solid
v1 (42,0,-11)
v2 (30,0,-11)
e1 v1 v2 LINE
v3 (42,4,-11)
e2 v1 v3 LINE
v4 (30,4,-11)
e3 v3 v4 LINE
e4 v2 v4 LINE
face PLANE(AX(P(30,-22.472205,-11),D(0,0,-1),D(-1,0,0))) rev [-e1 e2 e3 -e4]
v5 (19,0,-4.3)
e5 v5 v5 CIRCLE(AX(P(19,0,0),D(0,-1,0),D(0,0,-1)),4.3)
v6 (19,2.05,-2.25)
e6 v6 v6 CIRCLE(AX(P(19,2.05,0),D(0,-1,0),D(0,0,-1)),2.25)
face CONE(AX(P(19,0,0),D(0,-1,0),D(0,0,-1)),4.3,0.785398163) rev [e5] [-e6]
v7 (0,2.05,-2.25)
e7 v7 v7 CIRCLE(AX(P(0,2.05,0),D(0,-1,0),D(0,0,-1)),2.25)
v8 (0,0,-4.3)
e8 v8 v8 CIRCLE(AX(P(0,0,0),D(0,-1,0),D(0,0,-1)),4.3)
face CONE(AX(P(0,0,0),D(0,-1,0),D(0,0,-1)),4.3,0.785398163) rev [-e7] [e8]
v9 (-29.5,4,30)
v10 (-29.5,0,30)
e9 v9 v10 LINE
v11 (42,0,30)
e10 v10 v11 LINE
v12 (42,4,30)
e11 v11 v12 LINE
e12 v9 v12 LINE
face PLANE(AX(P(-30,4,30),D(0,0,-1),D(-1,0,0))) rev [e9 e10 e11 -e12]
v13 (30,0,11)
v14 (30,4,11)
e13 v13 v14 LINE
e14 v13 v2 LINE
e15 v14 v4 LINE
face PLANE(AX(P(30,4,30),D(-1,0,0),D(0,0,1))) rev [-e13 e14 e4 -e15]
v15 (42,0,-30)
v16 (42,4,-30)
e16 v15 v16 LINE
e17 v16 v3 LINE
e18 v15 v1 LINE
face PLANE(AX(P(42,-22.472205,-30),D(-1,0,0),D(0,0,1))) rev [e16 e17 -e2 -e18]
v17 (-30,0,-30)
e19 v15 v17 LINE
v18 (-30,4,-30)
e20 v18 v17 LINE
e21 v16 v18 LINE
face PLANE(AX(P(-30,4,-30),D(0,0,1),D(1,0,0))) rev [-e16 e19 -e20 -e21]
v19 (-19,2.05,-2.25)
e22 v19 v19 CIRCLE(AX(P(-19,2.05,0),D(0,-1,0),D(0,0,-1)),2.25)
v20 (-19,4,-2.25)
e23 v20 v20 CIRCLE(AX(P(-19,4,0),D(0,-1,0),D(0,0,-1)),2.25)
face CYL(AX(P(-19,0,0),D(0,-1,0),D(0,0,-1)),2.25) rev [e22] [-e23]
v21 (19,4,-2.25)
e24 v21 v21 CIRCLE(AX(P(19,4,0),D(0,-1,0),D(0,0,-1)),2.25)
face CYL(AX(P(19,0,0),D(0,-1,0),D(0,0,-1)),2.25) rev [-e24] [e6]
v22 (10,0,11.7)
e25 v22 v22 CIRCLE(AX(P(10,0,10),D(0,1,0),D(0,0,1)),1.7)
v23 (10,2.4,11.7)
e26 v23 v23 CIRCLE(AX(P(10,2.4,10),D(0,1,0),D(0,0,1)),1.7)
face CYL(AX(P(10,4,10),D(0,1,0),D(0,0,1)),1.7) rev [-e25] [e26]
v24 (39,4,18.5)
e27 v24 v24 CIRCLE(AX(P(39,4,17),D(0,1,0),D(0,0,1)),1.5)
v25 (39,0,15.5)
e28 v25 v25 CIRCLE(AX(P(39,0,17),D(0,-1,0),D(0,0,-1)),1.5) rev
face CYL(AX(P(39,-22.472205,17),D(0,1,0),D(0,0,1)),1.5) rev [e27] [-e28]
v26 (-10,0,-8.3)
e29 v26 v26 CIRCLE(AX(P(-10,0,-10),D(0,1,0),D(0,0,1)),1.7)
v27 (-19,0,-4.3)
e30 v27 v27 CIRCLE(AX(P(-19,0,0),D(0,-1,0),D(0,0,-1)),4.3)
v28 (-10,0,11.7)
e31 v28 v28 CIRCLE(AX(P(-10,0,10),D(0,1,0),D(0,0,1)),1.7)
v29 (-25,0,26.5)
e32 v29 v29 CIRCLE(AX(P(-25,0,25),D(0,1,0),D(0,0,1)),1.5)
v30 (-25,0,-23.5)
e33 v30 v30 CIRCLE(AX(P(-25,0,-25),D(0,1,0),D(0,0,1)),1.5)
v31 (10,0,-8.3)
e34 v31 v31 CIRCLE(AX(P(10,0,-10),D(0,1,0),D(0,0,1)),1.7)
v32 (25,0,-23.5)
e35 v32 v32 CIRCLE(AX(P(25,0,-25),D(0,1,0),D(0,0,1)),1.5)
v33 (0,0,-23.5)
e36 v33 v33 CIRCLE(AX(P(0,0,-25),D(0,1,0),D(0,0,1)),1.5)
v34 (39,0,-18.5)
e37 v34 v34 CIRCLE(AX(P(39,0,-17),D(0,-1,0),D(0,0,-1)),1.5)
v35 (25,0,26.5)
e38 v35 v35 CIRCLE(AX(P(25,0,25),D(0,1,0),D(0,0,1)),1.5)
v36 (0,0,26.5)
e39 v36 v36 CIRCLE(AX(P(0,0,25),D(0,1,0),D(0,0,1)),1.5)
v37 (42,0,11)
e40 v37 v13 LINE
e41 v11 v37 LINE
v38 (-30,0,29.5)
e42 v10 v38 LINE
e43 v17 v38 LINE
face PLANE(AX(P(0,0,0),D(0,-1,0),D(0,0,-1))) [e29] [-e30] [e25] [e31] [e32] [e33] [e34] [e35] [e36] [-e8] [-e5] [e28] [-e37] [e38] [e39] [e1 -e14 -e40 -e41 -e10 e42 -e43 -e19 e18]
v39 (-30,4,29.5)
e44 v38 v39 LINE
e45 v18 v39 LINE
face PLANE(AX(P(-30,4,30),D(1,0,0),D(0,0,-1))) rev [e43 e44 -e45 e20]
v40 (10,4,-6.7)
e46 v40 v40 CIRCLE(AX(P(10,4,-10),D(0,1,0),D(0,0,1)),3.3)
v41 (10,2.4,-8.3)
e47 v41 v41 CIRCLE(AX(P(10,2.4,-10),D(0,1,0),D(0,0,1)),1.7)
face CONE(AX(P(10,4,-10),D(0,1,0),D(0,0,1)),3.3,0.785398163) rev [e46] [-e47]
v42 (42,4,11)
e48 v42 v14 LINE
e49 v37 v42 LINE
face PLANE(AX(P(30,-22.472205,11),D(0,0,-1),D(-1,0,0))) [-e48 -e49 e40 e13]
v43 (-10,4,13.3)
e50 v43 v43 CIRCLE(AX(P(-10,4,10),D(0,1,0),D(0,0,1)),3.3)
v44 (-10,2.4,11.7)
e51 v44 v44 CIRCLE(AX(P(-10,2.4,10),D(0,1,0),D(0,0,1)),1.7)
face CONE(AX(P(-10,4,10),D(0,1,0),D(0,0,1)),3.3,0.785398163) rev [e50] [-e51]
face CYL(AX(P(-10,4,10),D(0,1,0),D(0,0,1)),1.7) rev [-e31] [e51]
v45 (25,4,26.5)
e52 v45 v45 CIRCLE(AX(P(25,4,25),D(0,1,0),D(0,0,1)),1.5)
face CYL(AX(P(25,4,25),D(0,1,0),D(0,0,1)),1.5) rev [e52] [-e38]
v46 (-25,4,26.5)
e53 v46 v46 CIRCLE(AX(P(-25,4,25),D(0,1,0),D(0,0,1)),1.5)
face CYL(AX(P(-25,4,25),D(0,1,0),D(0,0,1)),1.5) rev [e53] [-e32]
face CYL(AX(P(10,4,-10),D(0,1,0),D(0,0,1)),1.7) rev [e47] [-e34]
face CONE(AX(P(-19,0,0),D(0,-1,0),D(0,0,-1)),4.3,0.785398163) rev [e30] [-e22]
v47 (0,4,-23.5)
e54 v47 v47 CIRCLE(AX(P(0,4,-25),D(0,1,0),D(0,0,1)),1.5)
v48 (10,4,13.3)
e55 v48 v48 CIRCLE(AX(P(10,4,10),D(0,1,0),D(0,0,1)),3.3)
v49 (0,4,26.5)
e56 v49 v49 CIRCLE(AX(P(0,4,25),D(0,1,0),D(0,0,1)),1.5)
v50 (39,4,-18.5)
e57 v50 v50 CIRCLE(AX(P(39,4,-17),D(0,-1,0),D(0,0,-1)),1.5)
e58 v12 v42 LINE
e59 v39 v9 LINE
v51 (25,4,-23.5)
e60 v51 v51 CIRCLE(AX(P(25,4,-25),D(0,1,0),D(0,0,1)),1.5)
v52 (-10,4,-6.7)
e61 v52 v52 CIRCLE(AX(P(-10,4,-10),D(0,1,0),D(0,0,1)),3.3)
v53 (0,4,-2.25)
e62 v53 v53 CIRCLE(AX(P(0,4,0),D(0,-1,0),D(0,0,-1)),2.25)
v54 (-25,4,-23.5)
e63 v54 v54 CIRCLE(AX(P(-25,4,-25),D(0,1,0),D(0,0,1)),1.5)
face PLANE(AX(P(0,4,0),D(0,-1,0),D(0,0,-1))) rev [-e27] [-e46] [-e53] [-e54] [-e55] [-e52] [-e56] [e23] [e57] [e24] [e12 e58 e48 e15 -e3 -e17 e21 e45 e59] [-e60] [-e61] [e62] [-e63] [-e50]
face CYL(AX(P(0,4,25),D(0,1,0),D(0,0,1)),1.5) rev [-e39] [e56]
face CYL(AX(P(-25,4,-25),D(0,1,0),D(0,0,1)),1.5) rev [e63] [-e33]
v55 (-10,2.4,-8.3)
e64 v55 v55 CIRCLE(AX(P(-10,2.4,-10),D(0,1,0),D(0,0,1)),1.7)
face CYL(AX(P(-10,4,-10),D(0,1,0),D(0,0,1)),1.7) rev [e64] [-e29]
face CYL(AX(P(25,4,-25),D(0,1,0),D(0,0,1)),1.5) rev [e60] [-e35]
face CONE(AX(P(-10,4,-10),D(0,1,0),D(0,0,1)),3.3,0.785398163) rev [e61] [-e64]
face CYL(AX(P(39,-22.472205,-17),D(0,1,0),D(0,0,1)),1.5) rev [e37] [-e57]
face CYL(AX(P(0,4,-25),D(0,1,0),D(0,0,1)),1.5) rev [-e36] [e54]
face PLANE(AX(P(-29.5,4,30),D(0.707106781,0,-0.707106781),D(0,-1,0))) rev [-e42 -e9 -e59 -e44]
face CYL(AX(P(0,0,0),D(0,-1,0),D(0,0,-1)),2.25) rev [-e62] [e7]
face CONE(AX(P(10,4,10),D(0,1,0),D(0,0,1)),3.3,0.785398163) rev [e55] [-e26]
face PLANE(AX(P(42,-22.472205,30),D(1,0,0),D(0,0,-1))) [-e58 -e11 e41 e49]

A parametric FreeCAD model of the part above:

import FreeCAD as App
import Part
import Sketcher

V = App.Vector
Q = App.Units.Quantity


def edges_at(feature, points):
    """Names of the edges that pass closest to the given points."""
    edges = feature.Shape.Edges
    near = lambda p: min(range(len(edges)), key=lambda i: edges[i].distToShape(Part.Vertex(*p))[0])
    return sorted({f"Edge{near(p) + 1}" for p in points})

doc = App.newDocument("Part")
body = doc.addObject("PartDesign::Body", "Body")

sketch1 = doc.addObject("Sketcher::SketchObject", "Sketch")
body.addObject(sketch1)
sketch1.AttachmentSupport = (doc.XZ_Plane, [""])
sketch1.MapMode = "FlatFace"
sketch1.addGeometry(Part.LineSegment(V(-30, -30, 0), V(-30, 30, 0)), False)
sketch1.addGeometry(Part.LineSegment(V(-30, 30, 0), V(30, 30, 0)), False)
sketch1.addGeometry(Part.LineSegment(V(30, 30, 0), V(30, -30, 0)), False)
sketch1.addGeometry(Part.LineSegment(V(30, -30, 0), V(-30, -30, 0)), False)
sketch1.addConstraint(Sketcher.Constraint("Coincident", 0, 2, 1, 1))
sketch1.addConstraint(Sketcher.Constraint("Coincident", 1, 2, 2, 1))
sketch1.addConstraint(Sketcher.Constraint("Coincident", 2, 2, 3, 1))
sketch1.addConstraint(Sketcher.Constraint("Coincident", 3, 2, 0, 1))
sketch1.addConstraint(Sketcher.Constraint("Vertical", 0))
sketch1.addConstraint(Sketcher.Constraint("Horizontal", 1))
sketch1.addConstraint(Sketcher.Constraint("Vertical", 2))
sketch1.addConstraint(Sketcher.Constraint("Horizontal", 3))
sketch1.addConstraint(Sketcher.Constraint("Symmetric", 0, 2, 2, 2, -1, 1))
sketch1.addConstraint(Sketcher.Constraint("Equal", 3, 0))
sketch1.addConstraint(Sketcher.Constraint("DistanceX", 1, 1, 1, 2, 60.0))
pad1 = doc.addObject("PartDesign::Pad", "Pad")
body.addObject(pad1)
pad1.Profile = sketch1
pad1.Length = 4
pad1.Reversed = True

sketch2 = doc.addObject("Sketcher::SketchObject", "Sketch001")
body.addObject(sketch2)
sketch2.AttachmentSupport = (doc.XZ_Plane, [""])
sketch2.MapMode = "FlatFace"
sketch2.AttachmentOffset = App.Placement(V(0, 0, -4), App.Rotation())
sketch2.addGeometry(Part.Circle(V(-10, -10, 0), V(0, 0, 1), 1.7), False)
sketch2.addGeometry(Part.Circle(V(10, -10, 0), V(0, 0, 1), 1.7), False)
sketch2.addGeometry(Part.Circle(V(10, 10, 0), V(0, 0, 1), 1.7), False)
sketch2.addGeometry(Part.Circle(V(-10, 10, 0), V(0, 0, 1), 1.7), False)
sketch2.addConstraint(Sketcher.Constraint("Equal", 0, 1))
sketch2.addConstraint(Sketcher.Constraint("Equal", 1, 2))
sketch2.addConstraint(Sketcher.Constraint("Equal", 2, 3))
sketch2.addConstraint(Sketcher.Constraint("Symmetric", 0, 3, 2, 3, -1, 1))
sketch2.addConstraint(Sketcher.Constraint("Symmetric", 1, 3, 3, 3, -1, 1))
sketch2.addConstraint(Sketcher.Constraint("Symmetric", 0, 3, 1, 3, -2))
sketch2.addConstraint(Sketcher.Constraint("Diameter", 0, 3.4))
sketch2.addConstraint(Sketcher.Constraint("DistanceX", 0, 3, -1, 1, 10.0))
sketch2.addConstraint(Sketcher.Constraint("DistanceY", 0, 3, -1, 1, 10.0))
doc.recompute()
hole = doc.addObject("PartDesign::Hole", "Hole")
body.addObject(hole)
hole.Profile = sketch2
hole.ThreadType = "None"
hole.Diameter = 3.4
hole.DepthType = "ThroughAll"
hole.HoleCutType = "Countersink"
hole.HoleCutDiameter = 6.6
hole.HoleCutCountersinkAngle = 90
hole.Reversed = True

sketch3 = doc.addObject("Sketcher::SketchObject", "Sketch002")
body.addObject(sketch3)
sketch3.AttachmentSupport = (doc.YZ_Plane, [""])
sketch3.MapMode = "FlatFace"
sketch3.AttachmentOffset = App.Placement(V(0, 0, -19), App.Rotation())
sketch3.addGeometry(Part.LineSegment(V(4, 0, 0), V(0, 0, 0)), False)
sketch3.addGeometry(Part.LineSegment(V(0, 0, 0), V(0, -4.3, 0)), False)
sketch3.addGeometry(Part.LineSegment(V(0, -4.3, 0), V(2, -2.2, 0)), False)
sketch3.addGeometry(Part.LineSegment(V(2, -2.2, 0), V(4, -2.2, 0)), False)
sketch3.addGeometry(Part.LineSegment(V(4, -2.2, 0), V(4, 0, 0)), False)
sketch3.addConstraint(Sketcher.Constraint("Coincident", 0, 2, 1, 1))
sketch3.addConstraint(Sketcher.Constraint("Coincident", 1, 2, 2, 1))
sketch3.addConstraint(Sketcher.Constraint("Coincident", 2, 2, 3, 1))
sketch3.addConstraint(Sketcher.Constraint("Coincident", 3, 2, 4, 1))
sketch3.addConstraint(Sketcher.Constraint("Coincident", 4, 2, 0, 1))
sketch3.addConstraint(Sketcher.Constraint("Horizontal", 0))
sketch3.addConstraint(Sketcher.Constraint("Vertical", 1))
sketch3.addConstraint(Sketcher.Constraint("Horizontal", 3))
sketch3.addConstraint(Sketcher.Constraint("Vertical", 4))
sketch3.addConstraint(Sketcher.Constraint("Coincident", 0, 2, -1, 1))
sketch3.addConstraint(Sketcher.Constraint("DistanceX", 0, 2, 0, 1, 4.0))
sketch3.addConstraint(Sketcher.Constraint("Angle", 2, Q("45 deg")))
sketch3.addConstraint(Sketcher.Constraint("DistanceY", 1, 2, 1, 1, 4.3))
sketch3.addConstraint(Sketcher.Constraint("DistanceX", 3, 1, 3, 2, 1.95))
groove = doc.addObject("PartDesign::Groove", "Groove")
body.addObject(groove)
groove.Profile = sketch3
groove.ReferenceAxis = (sketch3, ["H_Axis"])
groove.Angle = 360
doc.recompute()

linearpattern = doc.addObject("PartDesign::LinearPattern", "LinearPattern")
body.addObject(linearpattern)
linearpattern.Originals = [groove]
linearpattern.Direction = (doc.X_Axis, [""])
linearpattern.Mode = "offset"
linearpattern.Offset = 19
linearpattern.Occurrences = 2
body.Tip = linearpattern
doc.recompute()

linearpattern2 = doc.addObject("PartDesign::LinearPattern", "LinearPattern001")
body.addObject(linearpattern2)
linearpattern2.Originals = [groove]
linearpattern2.Direction = (doc.X_Axis, [""])
linearpattern2.Mode = "offset"
linearpattern2.Offset = 38
linearpattern2.Occurrences = 2
body.Tip = linearpattern2

sketch4 = doc.addObject("Sketcher::SketchObject", "Sketch003")
body.addObject(sketch4)
sketch4.AttachmentSupport = (doc.XZ_Plane, [""])
sketch4.MapMode = "FlatFace"
sketch4.AttachmentOffset = App.Placement(V(0, 0, -4), App.Rotation())
sketch4.addGeometry(Part.Circle(V(25, -25, 0), V(0, 0, 1), 1.5), False)
sketch4.addGeometry(Part.Circle(V(25, 25, 0), V(0, 0, 1), 1.5), False)
sketch4.addGeometry(Part.Circle(V(0, 25, 0), V(0, 0, 1), 1.5), False)
sketch4.addGeometry(Part.Circle(V(-25, 25, 0), V(0, 0, 1), 1.5), False)
sketch4.addGeometry(Part.Circle(V(-25, -25, 0), V(0, 0, 1), 1.5), False)
sketch4.addGeometry(Part.Circle(V(0, -25, 0), V(0, 0, 1), 1.5), False)
sketch4.addConstraint(Sketcher.Constraint("Equal", 0, 1))
sketch4.addConstraint(Sketcher.Constraint("Equal", 1, 2))
sketch4.addConstraint(Sketcher.Constraint("Equal", 2, 3))
sketch4.addConstraint(Sketcher.Constraint("Equal", 3, 4))
sketch4.addConstraint(Sketcher.Constraint("Equal", 4, 5))
sketch4.addConstraint(Sketcher.Constraint("Symmetric", 0, 3, 3, 3, -1, 1))
sketch4.addConstraint(Sketcher.Constraint("Symmetric", 1, 3, 4, 3, -1, 1))
sketch4.addConstraint(Sketcher.Constraint("Symmetric", 2, 3, 5, 3, -1, 1))
sketch4.addConstraint(Sketcher.Constraint("Symmetric", 1, 3, 3, 3, -2))
sketch4.addConstraint(Sketcher.Constraint("PointOnObject", 2, 3, -2))
sketch4.addConstraint(Sketcher.Constraint("Horizontal", 1, 3, 2, 3))
sketch4.addConstraint(Sketcher.Constraint("Diameter", 0, 3.0))
sketch4.addConstraint(Sketcher.Constraint("DistanceX", -1, 1, 0, 3, 25.0))
sketch4.addConstraint(Sketcher.Constraint("DistanceY", 0, 3, -1, 1, 25.0))
doc.recompute()
hole2 = doc.addObject("PartDesign::Hole", "Hole001")
body.addObject(hole2)
hole2.Profile = sketch4
hole2.ThreadType = "None"
hole2.Diameter = 3
hole2.DepthType = "ThroughAll"
hole2.Reversed = True

sketch5 = doc.addObject("Sketcher::SketchObject", "Sketch004")
body.addObject(sketch5)
sketch5.AttachmentSupport = (doc.XZ_Plane, [""])
sketch5.MapMode = "FlatFace"
sketch5.AttachmentOffset = App.Placement(V(0, 0, -4), App.Rotation())
sketch5.addGeometry(Part.LineSegment(V(30, 11, 0), V(30, 30, 0)), False)
sketch5.addGeometry(Part.LineSegment(V(30, 30, 0), V(42, 30, 0)), False)
sketch5.addGeometry(Part.LineSegment(V(42, 30, 0), V(42, 11, 0)), False)
sketch5.addGeometry(Part.LineSegment(V(42, 11, 0), V(30, 11, 0)), False)
sketch5.addGeometry(Part.Circle(V(39, 17, 0), V(0, 0, 1), 1.5), False)
sketch5.addConstraint(Sketcher.Constraint("Coincident", 0, 2, 1, 1))
sketch5.addConstraint(Sketcher.Constraint("Coincident", 1, 2, 2, 1))
sketch5.addConstraint(Sketcher.Constraint("Coincident", 2, 2, 3, 1))
sketch5.addConstraint(Sketcher.Constraint("Coincident", 3, 2, 0, 1))
sketch5.addConstraint(Sketcher.Constraint("Vertical", 0))
sketch5.addConstraint(Sketcher.Constraint("Horizontal", 1))
sketch5.addConstraint(Sketcher.Constraint("Vertical", 2))
sketch5.addConstraint(Sketcher.Constraint("Horizontal", 3))
sketch5.addConstraint(Sketcher.Constraint("Diameter", 4, 3.0))
sketch5.addConstraint(Sketcher.Constraint("DistanceX", 1, 1, 1, 2, 12.0))
sketch5.addConstraint(Sketcher.Constraint("DistanceY", 0, 1, 0, 2, 19.0))
sketch5.addConstraint(Sketcher.Constraint("DistanceX", -1, 1, 4, 3, 39.0))
sketch5.addConstraint(Sketcher.Constraint("DistanceY", -1, 1, 4, 3, 17.0))
sketch5.addConstraint(Sketcher.Constraint("DistanceX", -1, 1, 0, 2, 30.0))
sketch5.addConstraint(Sketcher.Constraint("DistanceY", -1, 1, 0, 2, 30.0))
pad2 = doc.addObject("PartDesign::Pad", "Pad001")
body.addObject(pad2)
pad2.Profile = sketch5
pad2.Length = 4
doc.recompute()

chamfer = doc.addObject("PartDesign::Chamfer", "Chamfer")
body.addObject(chamfer)
chamfer.Base = (pad2, edges_at(pad2, [(-30, 2, 30)]))
chamfer.Size = 0.5
doc.recompute()

mirrored = doc.addObject("PartDesign::Mirrored", "Mirrored")
body.addObject(mirrored)
mirrored.Originals = [pad2]
mirrored.MirrorPlane = (doc.XY_Plane, [""])
body.Tip = mirrored

doc.recompute()
